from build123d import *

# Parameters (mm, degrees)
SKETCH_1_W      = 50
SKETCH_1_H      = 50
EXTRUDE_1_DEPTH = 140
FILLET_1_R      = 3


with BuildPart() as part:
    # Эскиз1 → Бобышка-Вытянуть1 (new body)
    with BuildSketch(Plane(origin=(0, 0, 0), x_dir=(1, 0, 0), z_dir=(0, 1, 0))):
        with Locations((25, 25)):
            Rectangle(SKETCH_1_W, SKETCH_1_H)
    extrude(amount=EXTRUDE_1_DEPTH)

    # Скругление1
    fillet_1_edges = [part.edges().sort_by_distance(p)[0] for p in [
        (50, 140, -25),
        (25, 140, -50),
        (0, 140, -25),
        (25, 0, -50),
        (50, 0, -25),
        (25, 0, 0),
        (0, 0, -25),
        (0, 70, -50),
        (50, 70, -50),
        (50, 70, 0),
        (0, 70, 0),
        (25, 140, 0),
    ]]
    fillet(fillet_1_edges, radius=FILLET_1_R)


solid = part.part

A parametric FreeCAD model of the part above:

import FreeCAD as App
import Part
import Sketcher
Q = App.Units.Quantity

doc = App.newDocument("Part")
body = doc.addObject("PartDesign::Body", "Body")

# Sketch on XZ plane
sketch1 = body.newObject("Sketcher::SketchObject", "Sketch")
sketch1.AttachmentSupport = (doc.getObject("XZ_Plane"), [""])
sketch1.MapMode = "FlatFace"
sketch1.addGeometry(Part.LineSegment(App.Vector(0, -50, 0), App.Vector(0, 0, 0)), False)
sketch1.addGeometry(Part.LineSegment(App.Vector(0, 0, 0), App.Vector(50, 0, 0)), False)
sketch1.addGeometry(Part.LineSegment(App.Vector(50, 0, 0), App.Vector(50, -50, 0)), False)
sketch1.addGeometry(Part.LineSegment(App.Vector(50, -50, 0), App.Vector(0, -50, 0)), False)
sketch1.addConstraint(Sketcher.Constraint("Coincident", 0, 2, 1, 1))
sketch1.addConstraint(Sketcher.Constraint("Coincident", 1, 2, 2, 1))
sketch1.addConstraint(Sketcher.Constraint("Coincident", 2, 2, 3, 1))
sketch1.addConstraint(Sketcher.Constraint("Coincident", 3, 2, 0, 1))
sketch1.addConstraint(Sketcher.Constraint("Vertical", 0))
sketch1.addConstraint(Sketcher.Constraint("Horizontal", 1))
sketch1.addConstraint(Sketcher.Constraint("Vertical", 2))
sketch1.addConstraint(Sketcher.Constraint("Horizontal", 3))
sketch1.addConstraint(Sketcher.Constraint("Coincident", 0, 2, -1, 1))
sketch1.addConstraint(Sketcher.Constraint("Equal", 3, 0))
sketch1.addConstraint(Sketcher.Constraint("DistanceX", 1, 1, 1, 2, Q("50 mm")))
pad1 = body.newObject("PartDesign::Pad", "Pad")
pad1.Profile = sketch1
pad1.Length = 140
pad1.Reversed = True
doc.recompute()

fillet = body.newObject("PartDesign::Fillet", "Fillet")
fillet.Base = (pad1, ["Edge1"])
fillet.UseAllEdges = True
fillet.Radius = 3

doc.recompute()
